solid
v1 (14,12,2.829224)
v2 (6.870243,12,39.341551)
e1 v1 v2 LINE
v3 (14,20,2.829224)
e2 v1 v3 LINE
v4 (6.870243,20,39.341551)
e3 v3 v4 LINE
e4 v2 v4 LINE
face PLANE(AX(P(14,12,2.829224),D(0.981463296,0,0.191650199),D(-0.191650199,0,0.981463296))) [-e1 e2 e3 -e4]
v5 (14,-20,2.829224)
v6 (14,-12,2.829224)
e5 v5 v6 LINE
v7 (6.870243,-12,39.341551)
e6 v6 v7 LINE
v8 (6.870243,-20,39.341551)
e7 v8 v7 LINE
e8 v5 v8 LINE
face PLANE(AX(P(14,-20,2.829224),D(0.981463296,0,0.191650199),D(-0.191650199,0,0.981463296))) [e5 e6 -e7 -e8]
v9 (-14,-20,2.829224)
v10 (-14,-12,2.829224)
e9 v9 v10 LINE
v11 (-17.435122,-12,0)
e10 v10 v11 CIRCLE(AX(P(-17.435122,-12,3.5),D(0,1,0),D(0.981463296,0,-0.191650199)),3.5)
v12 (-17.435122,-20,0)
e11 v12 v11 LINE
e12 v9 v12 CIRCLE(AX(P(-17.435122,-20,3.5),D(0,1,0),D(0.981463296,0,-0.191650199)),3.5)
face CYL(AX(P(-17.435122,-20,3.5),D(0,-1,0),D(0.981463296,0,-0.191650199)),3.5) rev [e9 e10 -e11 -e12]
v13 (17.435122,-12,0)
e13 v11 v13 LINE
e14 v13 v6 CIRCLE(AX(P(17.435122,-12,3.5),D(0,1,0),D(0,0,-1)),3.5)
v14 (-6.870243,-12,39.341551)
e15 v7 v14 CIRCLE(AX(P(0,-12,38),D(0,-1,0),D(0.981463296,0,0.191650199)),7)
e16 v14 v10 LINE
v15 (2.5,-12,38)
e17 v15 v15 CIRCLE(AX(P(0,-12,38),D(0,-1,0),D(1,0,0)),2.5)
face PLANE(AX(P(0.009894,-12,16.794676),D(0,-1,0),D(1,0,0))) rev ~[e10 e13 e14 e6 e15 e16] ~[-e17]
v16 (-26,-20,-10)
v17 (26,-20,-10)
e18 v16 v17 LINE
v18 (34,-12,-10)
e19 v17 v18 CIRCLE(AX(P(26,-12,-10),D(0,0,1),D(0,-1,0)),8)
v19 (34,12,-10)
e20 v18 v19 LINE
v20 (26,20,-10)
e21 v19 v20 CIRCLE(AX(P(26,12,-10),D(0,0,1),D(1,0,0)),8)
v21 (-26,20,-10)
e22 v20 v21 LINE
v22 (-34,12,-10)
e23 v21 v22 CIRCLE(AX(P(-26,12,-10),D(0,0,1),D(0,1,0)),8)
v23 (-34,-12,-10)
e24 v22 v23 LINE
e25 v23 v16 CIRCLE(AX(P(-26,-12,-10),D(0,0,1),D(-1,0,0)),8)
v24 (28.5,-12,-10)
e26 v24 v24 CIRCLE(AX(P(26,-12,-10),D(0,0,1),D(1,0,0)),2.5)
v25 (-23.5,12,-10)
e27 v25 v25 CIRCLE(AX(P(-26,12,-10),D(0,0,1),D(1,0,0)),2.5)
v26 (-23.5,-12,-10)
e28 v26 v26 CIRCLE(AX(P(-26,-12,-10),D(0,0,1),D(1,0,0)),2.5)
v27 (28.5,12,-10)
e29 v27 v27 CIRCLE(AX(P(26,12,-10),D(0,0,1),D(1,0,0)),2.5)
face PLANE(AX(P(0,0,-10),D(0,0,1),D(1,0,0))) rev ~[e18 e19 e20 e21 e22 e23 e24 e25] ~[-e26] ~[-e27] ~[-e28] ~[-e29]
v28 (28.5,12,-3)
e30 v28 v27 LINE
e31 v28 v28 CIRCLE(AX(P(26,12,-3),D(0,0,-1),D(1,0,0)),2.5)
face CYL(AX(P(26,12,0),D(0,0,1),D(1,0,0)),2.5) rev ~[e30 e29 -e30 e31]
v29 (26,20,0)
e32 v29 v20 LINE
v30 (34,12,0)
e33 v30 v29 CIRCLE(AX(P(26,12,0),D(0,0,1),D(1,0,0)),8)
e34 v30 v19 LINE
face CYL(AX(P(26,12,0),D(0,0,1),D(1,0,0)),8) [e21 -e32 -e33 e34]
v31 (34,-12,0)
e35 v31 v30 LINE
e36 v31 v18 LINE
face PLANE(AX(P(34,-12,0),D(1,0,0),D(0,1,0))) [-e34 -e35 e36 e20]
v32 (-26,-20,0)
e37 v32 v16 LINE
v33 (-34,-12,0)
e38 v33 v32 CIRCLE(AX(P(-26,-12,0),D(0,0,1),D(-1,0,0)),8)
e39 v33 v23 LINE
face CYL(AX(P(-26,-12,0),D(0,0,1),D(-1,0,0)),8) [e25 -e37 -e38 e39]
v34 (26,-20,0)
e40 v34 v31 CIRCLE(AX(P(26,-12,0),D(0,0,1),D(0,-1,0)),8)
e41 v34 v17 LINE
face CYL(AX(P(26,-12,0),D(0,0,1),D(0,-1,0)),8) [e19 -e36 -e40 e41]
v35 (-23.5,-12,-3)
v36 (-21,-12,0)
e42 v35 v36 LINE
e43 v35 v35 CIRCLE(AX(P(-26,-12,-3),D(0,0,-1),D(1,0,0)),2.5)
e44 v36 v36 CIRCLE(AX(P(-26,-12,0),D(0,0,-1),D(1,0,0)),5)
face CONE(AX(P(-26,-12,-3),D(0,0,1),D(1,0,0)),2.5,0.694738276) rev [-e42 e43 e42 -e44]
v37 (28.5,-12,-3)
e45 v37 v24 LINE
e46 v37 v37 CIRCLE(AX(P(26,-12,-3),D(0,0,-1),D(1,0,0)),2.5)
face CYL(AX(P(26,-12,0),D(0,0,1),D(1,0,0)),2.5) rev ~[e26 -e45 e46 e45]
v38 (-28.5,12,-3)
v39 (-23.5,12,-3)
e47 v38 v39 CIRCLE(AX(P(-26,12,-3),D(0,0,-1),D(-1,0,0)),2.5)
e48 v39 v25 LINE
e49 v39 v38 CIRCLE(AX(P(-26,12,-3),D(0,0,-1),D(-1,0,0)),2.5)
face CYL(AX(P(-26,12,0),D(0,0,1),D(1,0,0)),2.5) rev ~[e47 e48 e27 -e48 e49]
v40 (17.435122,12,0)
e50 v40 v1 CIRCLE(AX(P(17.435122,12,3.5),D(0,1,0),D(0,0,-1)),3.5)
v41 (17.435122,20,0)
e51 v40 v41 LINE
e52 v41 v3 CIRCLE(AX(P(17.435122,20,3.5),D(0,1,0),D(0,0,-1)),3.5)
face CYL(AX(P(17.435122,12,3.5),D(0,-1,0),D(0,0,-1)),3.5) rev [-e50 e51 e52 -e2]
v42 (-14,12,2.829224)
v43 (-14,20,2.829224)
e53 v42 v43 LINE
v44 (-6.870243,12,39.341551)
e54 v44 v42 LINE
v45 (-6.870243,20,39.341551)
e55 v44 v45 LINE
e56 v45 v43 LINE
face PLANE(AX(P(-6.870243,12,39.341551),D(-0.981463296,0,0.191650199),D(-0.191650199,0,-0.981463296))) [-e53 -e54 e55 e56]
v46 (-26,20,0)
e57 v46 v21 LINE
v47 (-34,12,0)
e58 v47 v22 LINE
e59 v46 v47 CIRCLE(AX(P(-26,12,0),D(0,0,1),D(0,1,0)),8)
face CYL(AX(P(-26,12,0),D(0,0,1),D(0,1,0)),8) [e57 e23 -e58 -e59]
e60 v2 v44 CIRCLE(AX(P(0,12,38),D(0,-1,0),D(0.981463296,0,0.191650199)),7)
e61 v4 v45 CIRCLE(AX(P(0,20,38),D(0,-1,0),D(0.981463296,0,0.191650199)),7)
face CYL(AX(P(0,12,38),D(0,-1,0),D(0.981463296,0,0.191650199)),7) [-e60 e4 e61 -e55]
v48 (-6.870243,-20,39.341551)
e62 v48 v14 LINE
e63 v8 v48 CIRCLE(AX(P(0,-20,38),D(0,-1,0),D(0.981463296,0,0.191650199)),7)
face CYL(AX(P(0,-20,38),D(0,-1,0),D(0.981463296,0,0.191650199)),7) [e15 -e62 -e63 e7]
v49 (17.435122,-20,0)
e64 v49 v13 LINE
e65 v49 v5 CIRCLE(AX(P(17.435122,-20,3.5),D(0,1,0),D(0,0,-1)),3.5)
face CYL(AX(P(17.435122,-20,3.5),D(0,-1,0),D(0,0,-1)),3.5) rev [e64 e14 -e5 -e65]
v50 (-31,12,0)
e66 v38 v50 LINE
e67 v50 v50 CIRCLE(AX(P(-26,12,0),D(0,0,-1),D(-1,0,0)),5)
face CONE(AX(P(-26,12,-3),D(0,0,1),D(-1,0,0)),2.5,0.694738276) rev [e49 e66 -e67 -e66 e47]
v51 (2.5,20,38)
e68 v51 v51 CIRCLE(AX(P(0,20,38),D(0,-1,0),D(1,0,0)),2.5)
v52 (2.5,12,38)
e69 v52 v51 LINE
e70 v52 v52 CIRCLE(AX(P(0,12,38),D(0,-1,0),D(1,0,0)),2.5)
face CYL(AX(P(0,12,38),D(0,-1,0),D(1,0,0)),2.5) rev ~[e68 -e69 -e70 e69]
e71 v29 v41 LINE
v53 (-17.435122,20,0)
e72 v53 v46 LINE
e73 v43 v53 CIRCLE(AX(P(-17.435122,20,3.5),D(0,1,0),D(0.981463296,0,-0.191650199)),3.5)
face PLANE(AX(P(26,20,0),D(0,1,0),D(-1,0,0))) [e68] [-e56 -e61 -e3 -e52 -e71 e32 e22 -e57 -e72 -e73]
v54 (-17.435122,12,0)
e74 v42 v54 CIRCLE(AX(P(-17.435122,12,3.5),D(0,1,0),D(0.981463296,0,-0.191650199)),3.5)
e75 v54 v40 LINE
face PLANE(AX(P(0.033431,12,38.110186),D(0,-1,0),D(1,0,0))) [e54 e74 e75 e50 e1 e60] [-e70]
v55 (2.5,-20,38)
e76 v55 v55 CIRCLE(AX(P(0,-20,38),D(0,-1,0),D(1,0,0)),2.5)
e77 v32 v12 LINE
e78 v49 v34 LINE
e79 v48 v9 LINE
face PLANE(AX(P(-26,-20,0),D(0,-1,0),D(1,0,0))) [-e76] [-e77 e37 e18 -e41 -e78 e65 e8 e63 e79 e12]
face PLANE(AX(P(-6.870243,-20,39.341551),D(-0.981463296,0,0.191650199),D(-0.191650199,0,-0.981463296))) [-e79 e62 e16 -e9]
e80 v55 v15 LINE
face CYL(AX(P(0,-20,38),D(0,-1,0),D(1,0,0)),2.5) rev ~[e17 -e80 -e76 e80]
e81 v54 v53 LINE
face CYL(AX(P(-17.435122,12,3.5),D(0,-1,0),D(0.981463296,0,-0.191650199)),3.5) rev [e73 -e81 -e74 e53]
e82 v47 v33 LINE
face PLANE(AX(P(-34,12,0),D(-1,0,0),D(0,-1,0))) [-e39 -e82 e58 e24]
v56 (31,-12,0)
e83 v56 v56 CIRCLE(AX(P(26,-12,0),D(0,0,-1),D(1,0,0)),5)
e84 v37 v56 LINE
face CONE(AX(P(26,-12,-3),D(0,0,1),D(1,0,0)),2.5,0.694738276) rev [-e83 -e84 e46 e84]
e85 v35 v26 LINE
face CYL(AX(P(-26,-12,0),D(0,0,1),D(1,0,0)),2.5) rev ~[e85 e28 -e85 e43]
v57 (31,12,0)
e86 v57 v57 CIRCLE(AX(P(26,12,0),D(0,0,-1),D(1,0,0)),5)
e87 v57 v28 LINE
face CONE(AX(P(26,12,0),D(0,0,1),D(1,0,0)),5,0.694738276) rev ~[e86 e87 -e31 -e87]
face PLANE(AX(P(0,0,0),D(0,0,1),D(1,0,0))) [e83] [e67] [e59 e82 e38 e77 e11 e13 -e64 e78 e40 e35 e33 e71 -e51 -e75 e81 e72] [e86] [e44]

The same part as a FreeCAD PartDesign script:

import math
import FreeCAD as App
import Part
import Sketcher

V = App.Vector
Q = App.Units.Quantity

doc = App.newDocument("Part")
body = doc.addObject("PartDesign::Body", "Body")

# Sketch on XY plane
sketch1 = doc.addObject("Sketcher::SketchObject", "Sketch")
body.addObject(sketch1)
sketch1.AttachmentSupport = (doc.XY_Plane, [""])
sketch1.MapMode = "FlatFace"
sketch1.addGeometry(Part.ArcOfCircle(Part.Circle(V(26, 12, 0), V(0, 0, 1), 8), math.radians(0), math.radians(90)), False)
sketch1.addGeometry(Part.LineSegment(V(26, 20, 0), V(-26, 20, 0)), False)
sketch1.addGeometry(Part.ArcOfCircle(Part.Circle(V(-26, 12, 0), V(0, 0, 1), 8), math.radians(90), math.radians(180)), False)
sketch1.addGeometry(Part.LineSegment(V(-34, 12, 0), V(-34, -12, 0)), False)
sketch1.addGeometry(Part.ArcOfCircle(Part.Circle(V(-26, -12, 0), V(0, 0, 1), 8), math.radians(180), math.radians(270)), False)
sketch1.addGeometry(Part.LineSegment(V(-26, -20, 0), V(26, -20, 0)), False)
sketch1.addGeometry(Part.ArcOfCircle(Part.Circle(V(26, -12, 0), V(0, 0, 1), 8), math.radians(-90), math.radians(0)), False)
sketch1.addGeometry(Part.LineSegment(V(34, -12, 0), V(34, 12, 0)), False)
sketch1.addConstraint(Sketcher.Constraint("Tangent", 0, 2, 1, 1))
sketch1.addConstraint(Sketcher.Constraint("Tangent", 1, 2, 2, 1))
sketch1.addConstraint(Sketcher.Constraint("Tangent", 2, 2, 3, 1))
sketch1.addConstraint(Sketcher.Constraint("Tangent", 3, 2, 4, 1))
sketch1.addConstraint(Sketcher.Constraint("Tangent", 4, 2, 5, 1))
sketch1.addConstraint(Sketcher.Constraint("Tangent", 5, 2, 6, 1))
sketch1.addConstraint(Sketcher.Constraint("Tangent", 6, 2, 7, 1))
sketch1.addConstraint(Sketcher.Constraint("Tangent", 7, 2, 0, 1))
sketch1.addConstraint(Sketcher.Constraint("Horizontal", 1))
sketch1.addConstraint(Sketcher.Constraint("Vertical", 3))
sketch1.addConstraint(Sketcher.Constraint("Horizontal", 5))
sketch1.addConstraint(Sketcher.Constraint("Vertical", 7))
sketch1.addConstraint(Sketcher.Constraint("Equal", 0, 2))
sketch1.addConstraint(Sketcher.Constraint("Equal", 2, 4))
sketch1.addConstraint(Sketcher.Constraint("Equal", 4, 6))
sketch1.addConstraint(Sketcher.Constraint("Symmetric", 0, 3, 4, 3, -1, 1))
sketch1.addConstraint(Sketcher.Constraint("Radius", 0, Q("8 mm")))
sketch1.addConstraint(Sketcher.Constraint("DistanceX", 1, 2, 1, 1, Q("52 mm")))
sketch1.addConstraint(Sketcher.Constraint("DistanceY", 3, 2, 3, 1, Q("24 mm")))
pad1 = doc.addObject("PartDesign::Pad", "Pad")
body.addObject(pad1)
pad1.Profile = sketch1
pad1.Length = 10
pad1.Reversed = True

# Sketch on XY plane
sketch2 = doc.addObject("Sketcher::SketchObject", "Sketch001")
body.addObject(sketch2)
sketch2.AttachmentSupport = (doc.XY_Plane, [""])
sketch2.MapMode = "FlatFace"
sketch2.addGeometry(Part.Circle(V(-26, 12, 0), V(0, 0, 1), 2.5), False)
sketch2.addGeometry(Part.Circle(V(-26, -12, 0), V(0, 0, 1), 2.5), False)
sketch2.addGeometry(Part.Circle(V(26, -12, 0), V(0, 0, 1), 2.5), False)
sketch2.addGeometry(Part.Circle(V(26, 12, 0), V(0, 0, 1), 2.5), False)
sketch2.addConstraint(Sketcher.Constraint("Equal", 0, 1))
sketch2.addConstraint(Sketcher.Constraint("Equal", 1, 2))
sketch2.addConstraint(Sketcher.Constraint("Equal", 2, 3))
sketch2.addConstraint(Sketcher.Constraint("Symmetric", 0, 3, 2, 3, -1, 1))
sketch2.addConstraint(Sketcher.Constraint("Symmetric", 1, 3, 3, 3, -1, 1))
sketch2.addConstraint(Sketcher.Constraint("Symmetric", 1, 3, 2, 3, -2))
sketch2.addConstraint(Sketcher.Constraint("Diameter", 0, Q("5 mm")))
sketch2.addConstraint(Sketcher.Constraint("DistanceX", 0, 3, -1, 1, Q("26 mm")))
sketch2.addConstraint(Sketcher.Constraint("DistanceY", -1, 1, 0, 3, Q("12 mm")))
pocket1 = doc.addObject("PartDesign::Pocket", "Pocket")
body.addObject(pocket1)
pocket1.Profile = sketch2
pocket1.Length = 25

# Sketch on XZ plane
sketch3 = doc.addObject("Sketcher::SketchObject", "Sketch002")
body.addObject(sketch3)
sketch3.AttachmentSupport = (doc.XZ_Plane, [""])
sketch3.MapMode = "FlatFace"
sketch3.AttachmentOffset = App.Placement(V(0, 0, 20), App.Rotation())
sketch3.addGeometry(Part.LineSegment(V(-6.870243, 39.341551, 0), V(-14, 2.829224, 0)), False)
sketch3.addGeometry(Part.ArcOfCircle(Part.Circle(V(-17.435122, 3.5, 0), V(0, 0, 1), 3.5), math.radians(-90), math.radians(-11.049104)), False)
sketch3.addGeometry(Part.LineSegment(V(-17.435122, 0, 0), V(17.435122, 0, 0)), False)
sketch3.addGeometry(Part.ArcOfCircle(Part.Circle(V(17.435122, 3.5, 0), V(0, 0, 1), 3.5), math.radians(-168.950896), math.radians(-90)), False)
sketch3.addGeometry(Part.LineSegment(V(14, 2.829224, 0), V(6.870243, 39.341551, 0)), False)
sketch3.addGeometry(Part.ArcOfCircle(Part.Circle(V(0, 38, 0), V(0, 0, 1), 7), math.radians(11.049104), math.radians(168.950896)), False)
sketch3.addGeometry(Part.Circle(V(0, 38, 0), V(0, 0, 1), 2.5), False)
sketch3.addConstraint(Sketcher.Constraint("Tangent", 0, 2, 1, 2))
sketch3.addConstraint(Sketcher.Constraint("Tangent", 1, 1, 2, 1))
sketch3.addConstraint(Sketcher.Constraint("Tangent", 2, 2, 3, 2))
sketch3.addConstraint(Sketcher.Constraint("Tangent", 3, 1, 4, 1))
sketch3.addConstraint(Sketcher.Constraint("Tangent", 4, 2, 5, 1))
sketch3.addConstraint(Sketcher.Constraint("Tangent", 5, 2, 0, 1))
sketch3.addConstraint(Sketcher.Constraint("Horizontal", 2))
sketch3.addConstraint(Sketcher.Constraint("Coincident", 6, 3, 5, 3))
sketch3.addConstraint(Sketcher.Constraint("Equal", 1, 3))
sketch3.addConstraint(Sketcher.Constraint("Symmetric", 1, 1, 2, 2, -1, 1))
sketch3.addConstraint(Sketcher.Constraint("PointOnObject", 5, 3, -2))
sketch3.addConstraint(Sketcher.Constraint("Diameter", 6, Q("5 mm")))
sketch3.addConstraint(Sketcher.Constraint("Radius", 5, Q("7 mm")))
sketch3.addConstraint(Sketcher.Constraint("Radius", 1, Q("3.5 mm")))
sketch3.addConstraint(Sketcher.Constraint("DistanceY", -1, 1, 5, 3, Q("38 mm")))
sketch3.addConstraint(Sketcher.Constraint("DistanceX", 0, 2, -1, 1, Q("14 mm")))
pad2 = doc.addObject("PartDesign::Pad", "Pad001")
body.addObject(pad2)
pad2.Profile = sketch3
pad2.Length = 8
pad2.Reversed = True

# Sketch on XZ plane
sketch4 = doc.addObject("Sketcher::SketchObject", "Sketch003")
body.addObject(sketch4)
sketch4.AttachmentSupport = (doc.XZ_Plane, [""])
sketch4.MapMode = "FlatFace"
sketch4.AttachmentOffset = App.Placement(V(0, 0, -12), App.Rotation())
sketch4.addGeometry(Part.ArcOfCircle(Part.Circle(V(0, 38, 0), V(0, 0, 1), 7), math.radians(11.049104), math.radians(168.950896)), False)
sketch4.addGeometry(Part.LineSegment(V(-6.870243, 39.341551, 0), V(-14, 2.829224, 0)), False)
sketch4.addGeometry(Part.ArcOfCircle(Part.Circle(V(-17.435122, 3.5, 0), V(0, 0, 1), 3.5), math.radians(-90), math.radians(-11.049104)), False)
sketch4.addGeometry(Part.LineSegment(V(-17.435122, 0, 0), V(17.435122, 0, 0)), False)
sketch4.addGeometry(Part.ArcOfCircle(Part.Circle(V(17.435122, 3.5, 0), V(0, 0, 1), 3.5), math.radians(-168.950896), math.radians(-90)), False)
sketch4.addGeometry(Part.LineSegment(V(14, 2.829224, 0), V(6.870243, 39.341551, 0)), False)
sketch4.addGeometry(Part.Circle(V(0, 38, 0), V(0, 0, 1), 2.5), False)
sketch4.addConstraint(Sketcher.Constraint("Tangent", 0, 2, 1, 1))
sketch4.addConstraint(Sketcher.Constraint("Tangent", 1, 2, 2, 2))
sketch4.addConstraint(Sketcher.Constraint("Tangent", 2, 1, 3, 1))
sketch4.addConstraint(Sketcher.Constraint("Tangent", 3, 2, 4, 2))
sketch4.addConstraint(Sketcher.Constraint("Tangent", 4, 1, 5, 1))
sketch4.addConstraint(Sketcher.Constraint("Tangent", 5, 2, 0, 1))
sketch4.addConstraint(Sketcher.Constraint("Horizontal", 3))
sketch4.addConstraint(Sketcher.Constraint("Coincident", 6, 3, 0, 3))
sketch4.addConstraint(Sketcher.Constraint("Equal", 2, 4))
sketch4.addConstraint(Sketcher.Constraint("Symmetric", 2, 1, 3, 2, -1, 1))
sketch4.addConstraint(Sketcher.Constraint("PointOnObject", 0, 3, -2))
sketch4.addConstraint(Sketcher.Constraint("Diameter", 6, Q("5 mm")))
sketch4.addConstraint(Sketcher.Constraint("Radius", 0, Q("7 mm")))
sketch4.addConstraint(Sketcher.Constraint("Radius", 2, Q("3.5 mm")))
sketch4.addConstraint(Sketcher.Constraint("DistanceY", -1, 1, 0, 3, Q("38 mm")))
sketch4.addConstraint(Sketcher.Constraint("DistanceX", 1, 2, -1, 1, Q("14 mm")))
pad3 = doc.addObject("PartDesign::Pad", "Pad002")
body.addObject(pad3)
pad3.Profile = sketch4
pad3.Length = 8
pad3.Reversed = True

# Sketch on XZ plane
sketch5 = doc.addObject("Sketcher::SketchObject", "Sketch004")
body.addObject(sketch5)
sketch5.AttachmentSupport = (doc.XZ_Plane, [""])
sketch5.MapMode = "FlatFace"
sketch5.AttachmentOffset = App.Placement(V(0, 0, 12), App.Rotation())
sketch5.addGeometry(Part.LineSegment(V(-21, 0, 0), V(-26, 0, 0)), False)
sketch5.addGeometry(Part.LineSegment(V(-26, 0, 0), V(-26, -3, 0)), False)
sketch5.addGeometry(Part.LineSegment(V(-26, -3, 0), V(-23.5, -3, 0)), False)
sketch5.addGeometry(Part.LineSegment(V(-23.5, -3, 0), V(-21, 0, 0)), False)
sketch5.addGeometry(Part.LineSegment(V(-26, 0, 0), V(-26, -3, 0)), True)  # axis
sketch5.addConstraint(Sketcher.Constraint("Coincident", 0, 2, 1, 1))
sketch5.addConstraint(Sketcher.Constraint("Coincident", 1, 2, 2, 1))
sketch5.addConstraint(Sketcher.Constraint("Coincident", 2, 2, 3, 1))
sketch5.addConstraint(Sketcher.Constraint("Coincident", 3, 2, 0, 1))
sketch5.addConstraint(Sketcher.Constraint("Horizontal", 0))
sketch5.addConstraint(Sketcher.Constraint("Vertical", 1))
sketch5.addConstraint(Sketcher.Constraint("Horizontal", 2))
sketch5.addConstraint(Sketcher.Constraint("Vertical", 4))
sketch5.addConstraint(Sketcher.Constraint("Coincident", 4, 1, 0, 2))
sketch5.addConstraint(Sketcher.Constraint("PointOnObject", 0, 2, -1))
sketch5.addConstraint(Sketcher.Constraint("Horizontal", 2, 2, 4, 2))
sketch5.addConstraint(Sketcher.Constraint("DistanceX", 0, 2, 0, 1, Q("5 mm")))
sketch5.addConstraint(Sketcher.Constraint("DistanceY", 1, 2, 1, 1, Q("3 mm")))
sketch5.addConstraint(Sketcher.Constraint("DistanceX", 2, 1, 2, 2, Q("2.5 mm")))
sketch5.addConstraint(Sketcher.Constraint("DistanceX", 0, 2, -1, 1, Q("26 mm")))
groove = doc.addObject("PartDesign::Groove", "Groove")
body.addObject(groove)
groove.Profile = sketch5
groove.ReferenceAxis = (sketch5, ["Axis0"])
groove.Angle = 360

# Sketch on XZ plane
sketch6 = doc.addObject("Sketcher::SketchObject", "Sketch005")
body.addObject(sketch6)
sketch6.AttachmentSupport = (doc.XZ_Plane, [""])
sketch6.MapMode = "FlatFace"
sketch6.AttachmentOffset = App.Placement(V(0, 0, 12), App.Rotation())
sketch6.addGeometry(Part.LineSegment(V(31, 0, 0), V(26, 0, 0)), False)
sketch6.addGeometry(Part.LineSegment(V(26, 0, 0), V(26, -3, 0)), False)
sketch6.addGeometry(Part.LineSegment(V(26, -3, 0), V(28.5, -3, 0)), False)
sketch6.addGeometry(Part.LineSegment(V(28.5, -3, 0), V(31, 0, 0)), False)
sketch6.addGeometry(Part.LineSegment(V(26, 0, 0), V(26, -3, 0)), True)  # axis
sketch6.addConstraint(Sketcher.Constraint("Coincident", 0, 2, 1, 1))
sketch6.addConstraint(Sketcher.Constraint("Coincident", 1, 2, 2, 1))
sketch6.addConstraint(Sketcher.Constraint("Coincident", 2, 2, 3, 1))
sketch6.addConstraint(Sketcher.Constraint("Coincident", 3, 2, 0, 1))
sketch6.addConstraint(Sketcher.Constraint("Horizontal", 0))
sketch6.addConstraint(Sketcher.Constraint("Vertical", 1))
sketch6.addConstraint(Sketcher.Constraint("Horizontal", 2))
sketch6.addConstraint(Sketcher.Constraint("Vertical", 4))
sketch6.addConstraint(Sketcher.Constraint("Coincident", 4, 1, 0, 2))
sketch6.addConstraint(Sketcher.Constraint("PointOnObject", 0, 2, -1))
sketch6.addConstraint(Sketcher.Constraint("Horizontal", 2, 2, 4, 2))
sketch6.addConstraint(Sketcher.Constraint("DistanceX", 0, 2, 0, 1, Q("5 mm")))
sketch6.addConstraint(Sketcher.Constraint("DistanceY", 1, 2, 1, 1, Q("3 mm")))
sketch6.addConstraint(Sketcher.Constraint("DistanceX", 2, 1, 2, 2, Q("2.5 mm")))
sketch6.addConstraint(Sketcher.Constraint("DistanceX", -1, 1, 0, 2, Q("26 mm")))
groove2 = doc.addObject("PartDesign::Groove", "Groove001")
body.addObject(groove2)
groove2.Profile = sketch6
groove2.ReferenceAxis = (sketch6, ["Axis0"])
groove2.Angle = 360

# Sketch on XZ plane
sketch7 = doc.addObject("Sketcher::SketchObject", "Sketch006")
body.addObject(sketch7)
sketch7.AttachmentSupport = (doc.XZ_Plane, [""])
sketch7.MapMode = "FlatFace"
sketch7.AttachmentOffset = App.Placement(V(0, 0, -12), App.Rotation())
sketch7.addGeometry(Part.LineSegment(V(26, -3, 0), V(26, 0, 0)), False)
sketch7.addGeometry(Part.LineSegment(V(26, 0, 0), V(31, 0, 0)), False)
sketch7.addGeometry(Part.LineSegment(V(31, 0, 0), V(28.5, -3, 0)), False)
sketch7.addGeometry(Part.LineSegment(V(28.5, -3, 0), V(26, -3, 0)), False)
sketch7.addGeometry(Part.LineSegment(V(26, 0, 0), V(26, -3, 0)), True)  # axis
sketch7.addConstraint(Sketcher.Constraint("Coincident", 0, 2, 1, 1))
sketch7.addConstraint(Sketcher.Constraint("Coincident", 1, 2, 2, 1))
sketch7.addConstraint(Sketcher.Constraint("Coincident", 2, 2, 3, 1))
sketch7.addConstraint(Sketcher.Constraint("Coincident", 3, 2, 0, 1))
sketch7.addConstraint(Sketcher.Constraint("Vertical", 0))
sketch7.addConstraint(Sketcher.Constraint("Horizontal", 1))
sketch7.addConstraint(Sketcher.Constraint("Horizontal", 3))
sketch7.addConstraint(Sketcher.Constraint("Vertical", 4))
sketch7.addConstraint(Sketcher.Constraint("Coincident", 4, 1, 0, 2))
sketch7.addConstraint(Sketcher.Constraint("PointOnObject", 0, 2, -1))
sketch7.addConstraint(Sketcher.Constraint("Horizontal", 2, 2, 4, 2))
sketch7.addConstraint(Sketcher.Constraint("DistanceX", 1, 1, 1, 2, Q("5 mm")))
sketch7.addConstraint(Sketcher.Constraint("DistanceY", 0, 1, 0, 2, Q("3 mm")))
sketch7.addConstraint(Sketcher.Constraint("DistanceX", 3, 2, 3, 1, Q("2.5 mm")))
sketch7.addConstraint(Sketcher.Constraint("DistanceX", -1, 1, 0, 2, Q("26 mm")))
groove3 = doc.addObject("PartDesign::Groove", "Groove002")
body.addObject(groove3)
groove3.Profile = sketch7
groove3.ReferenceAxis = (sketch7, ["Axis0"])
groove3.Angle = 360

# Sketch on XZ plane
sketch8 = doc.addObject("Sketcher::SketchObject", "Sketch007")
body.addObject(sketch8)
sketch8.AttachmentSupport = (doc.XZ_Plane, [""])
sketch8.MapMode = "FlatFace"
sketch8.AttachmentOffset = App.Placement(V(0, 0, -12), App.Rotation())
sketch8.addGeometry(Part.LineSegment(V(-31, 0, 0), V(-26, 0, 0)), False)
sketch8.addGeometry(Part.LineSegment(V(-26, 0, 0), V(-26, -3, 0)), False)
sketch8.addGeometry(Part.LineSegment(V(-26, -3, 0), V(-28.5, -3, 0)), False)
sketch8.addGeometry(Part.LineSegment(V(-28.5, -3, 0), V(-31, 0, 0)), False)
sketch8.addGeometry(Part.LineSegment(V(-26, 0, 0), V(-26, -3, 0)), True)  # axis
sketch8.addConstraint(Sketcher.Constraint("Coincident", 0, 2, 1, 1))
sketch8.addConstraint(Sketcher.Constraint("Coincident", 1, 2, 2, 1))
sketch8.addConstraint(Sketcher.Constraint("Coincident", 2, 2, 3, 1))
sketch8.addConstraint(Sketcher.Constraint("Coincident", 3, 2, 0, 1))
sketch8.addConstraint(Sketcher.Constraint("Horizontal", 0))
sketch8.addConstraint(Sketcher.Constraint("Vertical", 1))
sketch8.addConstraint(Sketcher.Constraint("Horizontal", 2))
sketch8.addConstraint(Sketcher.Constraint("Vertical", 4))
sketch8.addConstraint(Sketcher.Constraint("Coincident", 4, 1, 0, 2))
sketch8.addConstraint(Sketcher.Constraint("PointOnObject", 0, 2, -1))
sketch8.addConstraint(Sketcher.Constraint("Horizontal", 2, 2, 4, 2))
sketch8.addConstraint(Sketcher.Constraint("DistanceX", 0, 1, 0, 2, Q("5 mm")))
sketch8.addConstraint(Sketcher.Constraint("DistanceY", 1, 2, 1, 1, Q("3 mm")))
sketch8.addConstraint(Sketcher.Constraint("DistanceX", 2, 2, 2, 1, Q("2.5 mm")))
sketch8.addConstraint(Sketcher.Constraint("DistanceX", 0, 2, -1, 1, Q("26 mm")))
groove4 = doc.addObject("PartDesign::Groove", "Groove003")
body.addObject(groove4)
groove4.Profile = sketch8
groove4.ReferenceAxis = (sketch8, ["Axis0"])
groove4.Angle = 360

doc.recompute()
